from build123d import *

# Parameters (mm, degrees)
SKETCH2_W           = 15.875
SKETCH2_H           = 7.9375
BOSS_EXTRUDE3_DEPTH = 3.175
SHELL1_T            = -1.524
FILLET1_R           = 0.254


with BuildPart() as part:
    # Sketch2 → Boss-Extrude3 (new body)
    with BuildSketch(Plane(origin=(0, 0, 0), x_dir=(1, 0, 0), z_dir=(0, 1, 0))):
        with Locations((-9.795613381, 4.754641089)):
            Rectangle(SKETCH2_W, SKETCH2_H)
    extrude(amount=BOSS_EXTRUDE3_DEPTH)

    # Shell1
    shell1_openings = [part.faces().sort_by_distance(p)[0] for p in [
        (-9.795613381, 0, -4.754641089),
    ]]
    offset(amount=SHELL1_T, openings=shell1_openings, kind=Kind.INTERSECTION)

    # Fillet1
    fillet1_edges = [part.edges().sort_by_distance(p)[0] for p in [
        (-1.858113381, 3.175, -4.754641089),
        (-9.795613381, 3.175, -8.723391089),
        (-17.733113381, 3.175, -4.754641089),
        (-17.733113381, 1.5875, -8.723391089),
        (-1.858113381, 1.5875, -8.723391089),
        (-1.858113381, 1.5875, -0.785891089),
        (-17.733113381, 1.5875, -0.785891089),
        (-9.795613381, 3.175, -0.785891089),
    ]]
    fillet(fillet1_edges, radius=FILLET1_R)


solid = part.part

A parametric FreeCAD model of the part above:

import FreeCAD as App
import Part
import Sketcher
Q = App.Units.Quantity


def edges_at(feature, points):
    """Names of the edges that pass closest to the given points."""
    edges = feature.Shape.Edges
    near = lambda p: min(range(len(edges)), key=lambda i: edges[i].distToShape(Part.Vertex(*p))[0])
    return sorted({f"Edge{near(p) + 1}" for p in points})


def faces_at(feature, points):
    """Names of the faces that lie closest to the given points."""
    faces = feature.Shape.Faces
    near = lambda p: min(range(len(faces)), key=lambda i: faces[i].distToShape(Part.Vertex(*p))[0])
    return sorted({f"Face{near(p) + 1}" for p in points})


def add_polygon(sketch, points):
    """Adds a closed chain of lines whose ends are joined by coincident constraints."""
    first, n = sketch.GeometryCount, len(points)
    for a, b in zip(points, points[1:] + points[:1]):
        sketch.addGeometry(Part.LineSegment(App.Vector(*a, 0), App.Vector(*b, 0)), False)
    for i in range(n):
        sketch.addConstraint(Sketcher.Constraint("Coincident", first + i, 2, first + (i + 1) % n, 1))

doc = App.newDocument("Part")
body = doc.addObject("PartDesign::Body", "Body")

# Sketch on XZ plane
sketch1 = body.newObject("Sketcher::SketchObject", "Sketch")
sketch1.AttachmentSupport = (doc.getObject("XZ_Plane"), [""])
sketch1.MapMode = "FlatFace"
add_polygon(sketch1, [(-18, -9), (-18, -1), (-2, -1), (-2, -9)])  # lines 0-3
sketch1.addConstraint([
    Sketcher.Constraint("Vertical", 0),
    Sketcher.Constraint("Horizontal", 1),
    Sketcher.Constraint("Vertical", 2),
    Sketcher.Constraint("Horizontal", 3),
    Sketcher.Constraint("DistanceX", 1, 1, 1, 2, Q("0.625 in")),
    Sketcher.Constraint("DistanceY", 0, 1, 0, 2, Q("0.3125 in")),
    Sketcher.Constraint("DistanceY", 0, 2, -1, 1, Q("0.785891 mm")),
    Sketcher.Constraint("DistanceX", 0, 2, -1, 1, Q("17.733113 mm")),
])
pad1 = body.newObject("PartDesign::Pad", "Pad")
pad1.Profile = sketch1
pad1.Length = Q("0.125 in")
pad1.Reversed = True
doc.recompute()

thickness = body.newObject("PartDesign::Thickness", "Thickness")
thickness.Base = (pad1, faces_at(pad1, [(-9.796, 0, -4.755)]))
thickness.Value = Q("0.06 in")
thickness.Reversed = True
thickness.Join = "Intersection"
doc.recompute()

fillet = body.newObject("PartDesign::Fillet", "Fillet")
fillet.Base = (thickness, edges_at(thickness, [
    (-1.858, 3.175, -4.755),
    (-9.796, 3.175, -8.723),
    (-17.733, 3.175, -4.755),
    (-17.733, 1.587, -8.723),
    (-1.858, 1.587, -8.723),
    (-1.858, 1.587, -0.786),
    (-17.733, 1.587, -0.786),
    (-9.796, 3.175, -0.786),
]))
fillet.Radius = Q("0.01 in")

doc.recompute()
